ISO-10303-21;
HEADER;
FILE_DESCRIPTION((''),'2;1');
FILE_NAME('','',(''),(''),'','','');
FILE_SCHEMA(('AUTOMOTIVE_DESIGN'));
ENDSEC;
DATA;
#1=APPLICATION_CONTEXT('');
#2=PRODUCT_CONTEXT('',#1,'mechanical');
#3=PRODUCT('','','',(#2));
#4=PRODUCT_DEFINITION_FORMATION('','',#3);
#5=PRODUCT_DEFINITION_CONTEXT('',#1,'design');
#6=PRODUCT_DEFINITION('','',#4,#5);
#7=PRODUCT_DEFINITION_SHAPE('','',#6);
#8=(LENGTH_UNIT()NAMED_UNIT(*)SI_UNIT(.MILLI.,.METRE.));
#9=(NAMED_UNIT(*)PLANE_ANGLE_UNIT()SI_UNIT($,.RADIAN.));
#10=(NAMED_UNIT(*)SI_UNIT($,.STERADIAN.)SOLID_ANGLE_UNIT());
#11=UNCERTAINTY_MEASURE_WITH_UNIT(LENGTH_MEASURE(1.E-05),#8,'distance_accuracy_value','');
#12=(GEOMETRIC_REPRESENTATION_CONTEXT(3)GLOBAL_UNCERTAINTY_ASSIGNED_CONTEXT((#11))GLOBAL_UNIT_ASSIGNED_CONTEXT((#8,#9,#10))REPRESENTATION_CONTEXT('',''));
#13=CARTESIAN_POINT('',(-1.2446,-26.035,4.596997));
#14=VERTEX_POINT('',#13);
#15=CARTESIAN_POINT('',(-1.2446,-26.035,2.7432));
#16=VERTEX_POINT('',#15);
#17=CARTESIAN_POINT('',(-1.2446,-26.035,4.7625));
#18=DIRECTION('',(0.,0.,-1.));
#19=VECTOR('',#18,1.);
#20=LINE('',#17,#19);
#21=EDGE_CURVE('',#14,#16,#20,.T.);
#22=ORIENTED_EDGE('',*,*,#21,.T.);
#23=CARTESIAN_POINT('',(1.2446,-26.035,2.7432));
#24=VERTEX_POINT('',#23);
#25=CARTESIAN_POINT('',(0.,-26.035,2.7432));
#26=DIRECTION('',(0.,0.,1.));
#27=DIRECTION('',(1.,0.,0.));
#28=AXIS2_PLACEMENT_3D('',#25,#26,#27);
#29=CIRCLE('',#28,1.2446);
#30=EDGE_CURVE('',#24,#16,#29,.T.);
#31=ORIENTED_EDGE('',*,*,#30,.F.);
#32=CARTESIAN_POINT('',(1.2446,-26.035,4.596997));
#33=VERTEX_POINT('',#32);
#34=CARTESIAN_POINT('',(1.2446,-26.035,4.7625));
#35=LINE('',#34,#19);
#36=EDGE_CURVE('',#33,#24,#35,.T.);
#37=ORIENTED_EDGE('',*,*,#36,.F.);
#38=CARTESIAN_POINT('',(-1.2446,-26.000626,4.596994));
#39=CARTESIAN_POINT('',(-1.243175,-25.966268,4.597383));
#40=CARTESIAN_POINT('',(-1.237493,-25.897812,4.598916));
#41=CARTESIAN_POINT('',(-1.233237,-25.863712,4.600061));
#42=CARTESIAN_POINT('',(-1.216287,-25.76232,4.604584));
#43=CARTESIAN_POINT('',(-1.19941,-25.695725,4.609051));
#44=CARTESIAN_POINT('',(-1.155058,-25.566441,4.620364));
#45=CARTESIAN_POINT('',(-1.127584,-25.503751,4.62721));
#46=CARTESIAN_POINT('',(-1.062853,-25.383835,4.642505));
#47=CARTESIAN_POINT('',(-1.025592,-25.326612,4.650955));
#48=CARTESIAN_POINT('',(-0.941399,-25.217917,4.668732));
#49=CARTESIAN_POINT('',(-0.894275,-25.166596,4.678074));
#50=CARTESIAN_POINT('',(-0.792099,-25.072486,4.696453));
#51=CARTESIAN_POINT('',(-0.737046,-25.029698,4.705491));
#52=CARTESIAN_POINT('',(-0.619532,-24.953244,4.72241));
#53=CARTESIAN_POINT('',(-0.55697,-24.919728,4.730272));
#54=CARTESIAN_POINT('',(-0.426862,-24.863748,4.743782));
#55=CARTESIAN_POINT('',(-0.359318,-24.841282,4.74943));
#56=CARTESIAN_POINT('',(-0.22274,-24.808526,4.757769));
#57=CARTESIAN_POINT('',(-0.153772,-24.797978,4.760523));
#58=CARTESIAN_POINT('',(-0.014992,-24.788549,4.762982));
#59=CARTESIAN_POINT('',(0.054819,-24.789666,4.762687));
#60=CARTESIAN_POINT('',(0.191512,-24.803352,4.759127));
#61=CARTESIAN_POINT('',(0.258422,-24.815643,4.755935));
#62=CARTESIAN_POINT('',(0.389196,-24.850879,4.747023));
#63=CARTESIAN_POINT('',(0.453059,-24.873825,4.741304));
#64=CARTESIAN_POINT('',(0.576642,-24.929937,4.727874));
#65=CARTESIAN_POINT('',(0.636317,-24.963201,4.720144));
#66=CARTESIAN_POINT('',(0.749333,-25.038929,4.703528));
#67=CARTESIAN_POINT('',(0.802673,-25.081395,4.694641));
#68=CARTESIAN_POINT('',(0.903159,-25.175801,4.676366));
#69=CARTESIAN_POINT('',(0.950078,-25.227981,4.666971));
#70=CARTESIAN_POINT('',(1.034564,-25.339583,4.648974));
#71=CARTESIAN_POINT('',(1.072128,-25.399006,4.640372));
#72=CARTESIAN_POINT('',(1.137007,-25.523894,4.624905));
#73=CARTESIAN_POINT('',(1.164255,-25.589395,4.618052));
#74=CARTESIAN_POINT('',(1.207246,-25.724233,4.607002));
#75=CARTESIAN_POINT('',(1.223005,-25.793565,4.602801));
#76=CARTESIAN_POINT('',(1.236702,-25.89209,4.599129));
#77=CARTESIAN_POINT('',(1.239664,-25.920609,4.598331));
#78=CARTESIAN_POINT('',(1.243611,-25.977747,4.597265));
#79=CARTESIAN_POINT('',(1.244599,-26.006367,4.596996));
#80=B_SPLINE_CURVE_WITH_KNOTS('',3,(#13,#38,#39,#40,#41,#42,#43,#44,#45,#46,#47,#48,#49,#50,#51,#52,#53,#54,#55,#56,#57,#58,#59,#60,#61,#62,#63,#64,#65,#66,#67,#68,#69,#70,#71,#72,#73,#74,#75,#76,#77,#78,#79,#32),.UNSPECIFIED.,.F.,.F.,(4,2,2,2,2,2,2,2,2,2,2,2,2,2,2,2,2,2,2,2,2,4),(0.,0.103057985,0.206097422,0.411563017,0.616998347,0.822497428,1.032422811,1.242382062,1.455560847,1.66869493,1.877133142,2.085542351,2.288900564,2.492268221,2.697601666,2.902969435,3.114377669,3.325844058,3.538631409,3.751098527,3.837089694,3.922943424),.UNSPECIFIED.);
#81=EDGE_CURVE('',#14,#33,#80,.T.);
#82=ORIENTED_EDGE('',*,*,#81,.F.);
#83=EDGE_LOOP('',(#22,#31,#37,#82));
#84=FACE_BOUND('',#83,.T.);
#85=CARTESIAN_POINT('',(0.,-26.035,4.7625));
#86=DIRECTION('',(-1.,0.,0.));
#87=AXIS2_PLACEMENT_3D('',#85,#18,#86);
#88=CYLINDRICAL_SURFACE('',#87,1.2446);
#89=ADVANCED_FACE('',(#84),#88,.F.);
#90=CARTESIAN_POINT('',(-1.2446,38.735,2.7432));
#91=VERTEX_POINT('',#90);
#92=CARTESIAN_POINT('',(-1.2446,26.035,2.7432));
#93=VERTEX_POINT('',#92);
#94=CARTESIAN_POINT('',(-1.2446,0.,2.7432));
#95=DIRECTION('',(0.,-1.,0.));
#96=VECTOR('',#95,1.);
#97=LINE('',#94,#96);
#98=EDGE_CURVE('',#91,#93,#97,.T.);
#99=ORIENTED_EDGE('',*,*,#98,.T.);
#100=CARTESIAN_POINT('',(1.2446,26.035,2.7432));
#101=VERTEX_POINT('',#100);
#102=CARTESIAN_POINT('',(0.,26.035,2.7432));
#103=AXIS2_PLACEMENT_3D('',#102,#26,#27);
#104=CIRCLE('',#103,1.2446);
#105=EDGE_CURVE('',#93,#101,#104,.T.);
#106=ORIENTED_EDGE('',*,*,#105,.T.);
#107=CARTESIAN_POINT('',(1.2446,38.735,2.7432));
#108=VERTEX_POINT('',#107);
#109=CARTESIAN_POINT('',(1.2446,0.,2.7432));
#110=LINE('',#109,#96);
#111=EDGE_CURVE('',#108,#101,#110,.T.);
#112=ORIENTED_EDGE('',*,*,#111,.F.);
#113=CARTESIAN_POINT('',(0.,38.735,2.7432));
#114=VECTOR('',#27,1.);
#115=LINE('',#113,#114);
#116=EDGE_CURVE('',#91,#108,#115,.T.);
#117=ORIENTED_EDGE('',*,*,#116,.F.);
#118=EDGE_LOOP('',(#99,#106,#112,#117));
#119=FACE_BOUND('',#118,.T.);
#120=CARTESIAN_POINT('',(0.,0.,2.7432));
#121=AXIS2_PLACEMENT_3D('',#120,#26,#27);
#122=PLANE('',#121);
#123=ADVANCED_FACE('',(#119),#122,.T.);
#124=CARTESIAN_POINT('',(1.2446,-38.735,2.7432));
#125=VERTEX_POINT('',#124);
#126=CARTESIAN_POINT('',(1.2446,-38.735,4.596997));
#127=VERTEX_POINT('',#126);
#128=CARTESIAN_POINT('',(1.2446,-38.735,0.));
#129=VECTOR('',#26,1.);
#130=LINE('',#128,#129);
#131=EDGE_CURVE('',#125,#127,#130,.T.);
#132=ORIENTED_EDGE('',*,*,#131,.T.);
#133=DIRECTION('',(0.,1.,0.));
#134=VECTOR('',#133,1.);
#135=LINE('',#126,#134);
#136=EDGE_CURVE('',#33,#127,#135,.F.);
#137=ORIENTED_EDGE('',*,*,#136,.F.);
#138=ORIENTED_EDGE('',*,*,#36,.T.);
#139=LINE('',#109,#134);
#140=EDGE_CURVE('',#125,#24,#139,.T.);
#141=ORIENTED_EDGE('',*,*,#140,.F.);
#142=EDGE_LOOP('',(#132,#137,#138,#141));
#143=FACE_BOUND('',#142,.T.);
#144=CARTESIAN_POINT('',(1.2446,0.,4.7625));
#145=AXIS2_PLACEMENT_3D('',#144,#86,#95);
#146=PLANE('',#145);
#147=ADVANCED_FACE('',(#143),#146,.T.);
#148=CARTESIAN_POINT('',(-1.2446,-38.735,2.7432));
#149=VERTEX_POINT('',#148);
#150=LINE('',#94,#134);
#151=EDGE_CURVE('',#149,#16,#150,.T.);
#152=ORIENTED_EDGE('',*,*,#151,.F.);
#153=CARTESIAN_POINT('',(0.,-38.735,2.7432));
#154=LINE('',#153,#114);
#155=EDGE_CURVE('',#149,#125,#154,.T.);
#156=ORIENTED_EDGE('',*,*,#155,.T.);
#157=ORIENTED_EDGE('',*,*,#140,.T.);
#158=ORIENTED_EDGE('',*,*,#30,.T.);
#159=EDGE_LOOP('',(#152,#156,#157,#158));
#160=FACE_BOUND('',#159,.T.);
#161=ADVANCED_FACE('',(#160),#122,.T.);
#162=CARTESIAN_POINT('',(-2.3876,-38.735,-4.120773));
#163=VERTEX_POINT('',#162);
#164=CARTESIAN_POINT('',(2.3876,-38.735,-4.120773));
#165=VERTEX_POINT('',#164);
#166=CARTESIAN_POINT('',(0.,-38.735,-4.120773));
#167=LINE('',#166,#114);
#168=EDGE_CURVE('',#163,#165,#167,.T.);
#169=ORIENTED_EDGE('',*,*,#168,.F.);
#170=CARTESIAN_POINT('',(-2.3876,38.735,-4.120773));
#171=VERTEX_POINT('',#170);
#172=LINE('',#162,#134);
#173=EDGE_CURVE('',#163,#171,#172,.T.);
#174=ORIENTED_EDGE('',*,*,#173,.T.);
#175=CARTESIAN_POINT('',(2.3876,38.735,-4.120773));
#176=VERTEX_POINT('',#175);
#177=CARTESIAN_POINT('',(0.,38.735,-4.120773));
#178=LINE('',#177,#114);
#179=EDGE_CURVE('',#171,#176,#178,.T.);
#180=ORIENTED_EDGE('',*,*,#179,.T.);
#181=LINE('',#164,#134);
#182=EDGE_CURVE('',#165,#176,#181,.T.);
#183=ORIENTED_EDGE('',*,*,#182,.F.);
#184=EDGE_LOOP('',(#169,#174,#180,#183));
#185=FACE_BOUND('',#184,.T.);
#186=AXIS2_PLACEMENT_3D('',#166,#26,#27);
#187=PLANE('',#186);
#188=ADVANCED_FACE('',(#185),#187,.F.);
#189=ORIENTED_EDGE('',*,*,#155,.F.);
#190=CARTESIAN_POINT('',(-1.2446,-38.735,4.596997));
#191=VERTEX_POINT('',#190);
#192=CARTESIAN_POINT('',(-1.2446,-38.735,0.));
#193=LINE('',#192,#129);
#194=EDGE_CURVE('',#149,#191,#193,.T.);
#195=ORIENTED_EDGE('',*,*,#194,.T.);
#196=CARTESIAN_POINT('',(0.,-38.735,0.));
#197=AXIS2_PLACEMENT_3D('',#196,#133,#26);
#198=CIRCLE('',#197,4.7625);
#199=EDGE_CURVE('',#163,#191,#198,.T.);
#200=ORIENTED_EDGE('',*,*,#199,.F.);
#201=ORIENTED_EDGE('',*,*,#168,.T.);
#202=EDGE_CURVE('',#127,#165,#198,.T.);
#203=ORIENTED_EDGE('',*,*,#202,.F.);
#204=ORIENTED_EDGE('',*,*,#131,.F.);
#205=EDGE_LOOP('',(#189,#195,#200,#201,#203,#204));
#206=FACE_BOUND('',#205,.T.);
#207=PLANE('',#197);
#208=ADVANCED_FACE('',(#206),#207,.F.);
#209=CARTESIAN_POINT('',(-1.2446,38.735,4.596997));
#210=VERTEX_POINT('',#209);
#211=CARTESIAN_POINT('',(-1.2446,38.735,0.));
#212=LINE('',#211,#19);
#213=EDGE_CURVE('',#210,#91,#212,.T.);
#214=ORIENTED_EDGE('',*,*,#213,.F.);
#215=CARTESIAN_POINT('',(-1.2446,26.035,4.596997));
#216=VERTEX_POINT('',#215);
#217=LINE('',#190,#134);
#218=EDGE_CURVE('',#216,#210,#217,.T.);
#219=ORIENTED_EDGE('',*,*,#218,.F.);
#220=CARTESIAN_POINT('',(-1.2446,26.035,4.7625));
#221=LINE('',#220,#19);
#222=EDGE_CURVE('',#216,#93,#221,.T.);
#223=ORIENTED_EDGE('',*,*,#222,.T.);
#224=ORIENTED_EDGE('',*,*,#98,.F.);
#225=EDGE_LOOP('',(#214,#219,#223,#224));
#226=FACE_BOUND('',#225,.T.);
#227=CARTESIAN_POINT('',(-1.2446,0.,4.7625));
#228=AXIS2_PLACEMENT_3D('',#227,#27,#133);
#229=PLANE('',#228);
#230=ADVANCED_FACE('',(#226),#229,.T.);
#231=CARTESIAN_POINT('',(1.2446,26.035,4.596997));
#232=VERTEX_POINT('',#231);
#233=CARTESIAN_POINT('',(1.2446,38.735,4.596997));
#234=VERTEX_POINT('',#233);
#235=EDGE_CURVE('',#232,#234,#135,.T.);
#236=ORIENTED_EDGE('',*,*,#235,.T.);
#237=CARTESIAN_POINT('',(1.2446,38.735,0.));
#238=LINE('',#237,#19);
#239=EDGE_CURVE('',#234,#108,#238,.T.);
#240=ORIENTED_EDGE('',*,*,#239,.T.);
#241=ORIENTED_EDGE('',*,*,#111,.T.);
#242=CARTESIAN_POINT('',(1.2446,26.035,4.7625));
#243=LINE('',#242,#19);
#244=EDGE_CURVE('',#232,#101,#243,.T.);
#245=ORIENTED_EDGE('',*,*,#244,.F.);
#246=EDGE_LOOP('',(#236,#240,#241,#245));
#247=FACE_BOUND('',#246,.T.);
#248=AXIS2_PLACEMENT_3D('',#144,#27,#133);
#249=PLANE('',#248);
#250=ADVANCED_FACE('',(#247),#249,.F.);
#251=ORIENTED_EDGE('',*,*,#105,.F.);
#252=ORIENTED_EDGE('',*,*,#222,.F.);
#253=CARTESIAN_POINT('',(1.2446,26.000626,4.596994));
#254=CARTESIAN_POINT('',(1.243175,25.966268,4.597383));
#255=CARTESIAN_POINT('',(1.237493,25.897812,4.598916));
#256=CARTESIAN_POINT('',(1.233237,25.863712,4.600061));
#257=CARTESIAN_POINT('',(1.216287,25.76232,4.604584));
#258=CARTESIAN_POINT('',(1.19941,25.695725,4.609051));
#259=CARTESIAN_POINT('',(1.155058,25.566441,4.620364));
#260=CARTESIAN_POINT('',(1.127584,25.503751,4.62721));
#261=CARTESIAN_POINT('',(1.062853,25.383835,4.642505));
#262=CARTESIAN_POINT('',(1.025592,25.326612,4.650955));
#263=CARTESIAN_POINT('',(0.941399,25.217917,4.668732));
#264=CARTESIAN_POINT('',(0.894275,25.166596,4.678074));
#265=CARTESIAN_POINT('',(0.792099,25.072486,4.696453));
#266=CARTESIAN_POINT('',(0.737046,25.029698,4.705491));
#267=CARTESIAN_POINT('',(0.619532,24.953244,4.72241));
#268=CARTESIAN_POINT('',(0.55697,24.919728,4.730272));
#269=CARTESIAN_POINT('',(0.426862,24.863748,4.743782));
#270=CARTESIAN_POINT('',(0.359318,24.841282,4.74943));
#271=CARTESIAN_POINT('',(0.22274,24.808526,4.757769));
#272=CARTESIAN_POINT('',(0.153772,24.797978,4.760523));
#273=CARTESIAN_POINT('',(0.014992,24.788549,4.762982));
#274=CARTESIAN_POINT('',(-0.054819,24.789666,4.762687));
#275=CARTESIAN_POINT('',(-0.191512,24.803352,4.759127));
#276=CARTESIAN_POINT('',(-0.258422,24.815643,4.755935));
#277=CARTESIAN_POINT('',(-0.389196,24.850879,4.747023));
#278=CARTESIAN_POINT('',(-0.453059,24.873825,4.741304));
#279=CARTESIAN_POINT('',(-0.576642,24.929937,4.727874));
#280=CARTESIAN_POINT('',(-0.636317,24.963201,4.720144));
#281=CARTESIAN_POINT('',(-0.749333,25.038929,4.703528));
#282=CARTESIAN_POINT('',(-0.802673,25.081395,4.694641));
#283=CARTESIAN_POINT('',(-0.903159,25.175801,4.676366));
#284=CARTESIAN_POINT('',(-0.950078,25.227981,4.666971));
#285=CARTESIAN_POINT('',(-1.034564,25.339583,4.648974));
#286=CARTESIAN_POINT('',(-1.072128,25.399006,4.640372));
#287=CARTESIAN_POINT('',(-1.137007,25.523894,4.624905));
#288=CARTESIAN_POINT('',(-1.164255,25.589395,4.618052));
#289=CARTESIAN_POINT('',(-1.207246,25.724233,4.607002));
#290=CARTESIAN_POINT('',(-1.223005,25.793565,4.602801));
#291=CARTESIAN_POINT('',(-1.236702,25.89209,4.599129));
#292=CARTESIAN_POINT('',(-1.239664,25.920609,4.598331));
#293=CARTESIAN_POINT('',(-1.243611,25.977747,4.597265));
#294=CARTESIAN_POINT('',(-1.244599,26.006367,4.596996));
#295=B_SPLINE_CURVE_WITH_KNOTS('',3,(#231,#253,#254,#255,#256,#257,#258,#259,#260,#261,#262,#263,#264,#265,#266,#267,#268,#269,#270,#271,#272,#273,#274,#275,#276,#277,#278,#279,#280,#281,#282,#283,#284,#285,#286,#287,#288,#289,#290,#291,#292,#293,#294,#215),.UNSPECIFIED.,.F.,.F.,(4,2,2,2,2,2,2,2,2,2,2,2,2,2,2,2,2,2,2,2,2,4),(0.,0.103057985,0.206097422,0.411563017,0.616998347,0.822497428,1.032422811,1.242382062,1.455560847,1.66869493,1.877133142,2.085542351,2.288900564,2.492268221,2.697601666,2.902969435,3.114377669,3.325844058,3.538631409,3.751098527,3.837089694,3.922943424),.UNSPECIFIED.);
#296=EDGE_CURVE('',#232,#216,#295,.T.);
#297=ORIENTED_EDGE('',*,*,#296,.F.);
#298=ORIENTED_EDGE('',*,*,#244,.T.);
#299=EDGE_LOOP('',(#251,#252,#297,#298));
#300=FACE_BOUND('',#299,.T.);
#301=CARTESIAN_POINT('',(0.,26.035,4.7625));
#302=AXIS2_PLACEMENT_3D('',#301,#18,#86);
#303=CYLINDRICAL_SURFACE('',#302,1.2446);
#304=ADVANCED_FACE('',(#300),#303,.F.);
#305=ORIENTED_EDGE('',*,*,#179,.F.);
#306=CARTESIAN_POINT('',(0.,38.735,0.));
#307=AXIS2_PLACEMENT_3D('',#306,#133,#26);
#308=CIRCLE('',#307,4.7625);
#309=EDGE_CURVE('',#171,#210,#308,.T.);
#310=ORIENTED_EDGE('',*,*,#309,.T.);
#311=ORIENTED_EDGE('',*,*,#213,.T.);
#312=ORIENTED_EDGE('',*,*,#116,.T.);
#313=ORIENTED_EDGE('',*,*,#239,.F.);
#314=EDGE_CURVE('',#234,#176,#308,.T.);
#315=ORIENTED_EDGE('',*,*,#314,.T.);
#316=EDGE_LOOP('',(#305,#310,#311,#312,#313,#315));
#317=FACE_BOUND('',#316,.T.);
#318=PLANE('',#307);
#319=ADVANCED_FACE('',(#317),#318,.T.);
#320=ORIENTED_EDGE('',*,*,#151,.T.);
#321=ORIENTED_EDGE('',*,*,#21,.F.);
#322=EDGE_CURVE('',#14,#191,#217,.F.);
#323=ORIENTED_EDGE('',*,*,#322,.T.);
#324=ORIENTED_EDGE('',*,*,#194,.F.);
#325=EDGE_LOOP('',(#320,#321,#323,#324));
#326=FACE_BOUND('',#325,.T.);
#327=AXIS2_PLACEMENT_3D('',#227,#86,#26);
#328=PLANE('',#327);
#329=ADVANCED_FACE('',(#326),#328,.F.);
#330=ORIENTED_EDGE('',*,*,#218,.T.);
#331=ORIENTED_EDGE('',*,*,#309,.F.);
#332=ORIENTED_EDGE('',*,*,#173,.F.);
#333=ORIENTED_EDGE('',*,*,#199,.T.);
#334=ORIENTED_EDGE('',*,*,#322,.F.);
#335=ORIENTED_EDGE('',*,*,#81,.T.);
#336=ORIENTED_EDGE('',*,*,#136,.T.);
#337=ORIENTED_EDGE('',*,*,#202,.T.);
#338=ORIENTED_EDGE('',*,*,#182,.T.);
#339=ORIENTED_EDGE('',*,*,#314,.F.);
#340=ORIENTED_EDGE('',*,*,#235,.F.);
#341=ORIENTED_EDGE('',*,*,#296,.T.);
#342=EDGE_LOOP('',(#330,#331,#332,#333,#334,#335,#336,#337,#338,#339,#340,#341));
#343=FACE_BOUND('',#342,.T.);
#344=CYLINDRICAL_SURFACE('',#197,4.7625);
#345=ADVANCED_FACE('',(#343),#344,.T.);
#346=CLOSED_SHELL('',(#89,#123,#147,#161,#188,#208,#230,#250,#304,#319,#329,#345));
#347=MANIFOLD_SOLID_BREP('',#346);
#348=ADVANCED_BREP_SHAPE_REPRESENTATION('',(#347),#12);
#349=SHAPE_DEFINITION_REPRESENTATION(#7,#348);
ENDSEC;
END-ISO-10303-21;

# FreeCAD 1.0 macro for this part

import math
import FreeCAD as App
import Part
import Sketcher
Q = App.Units.Quantity

doc = App.newDocument("Part")
body = doc.addObject("PartDesign::Body", "Body")

# Sketch on XZ plane
sketch1 = doc.addObject("Sketcher::SketchObject", "Sketch")
body.addObject(sketch1)
sketch1.AttachmentSupport = (doc.XZ_Plane, [""])
sketch1.MapMode = "FlatFace"
sketch1.addGeometry(Part.LineSegment(App.Vector(2.4, -4.1, 0), App.Vector(-2.4, -4.1, 0)), False)
sketch1.addGeometry(Part.ArcOfCircle(Part.Circle(App.Vector(0, 0, 0), App.Vector(0, 0, 1), 4.8), math.radians(0), math.radians(240)), False)
sketch1.addGeometry(Part.ArcOfCircle(Part.Circle(App.Vector(0, 0, 0), App.Vector(0, 0, 1), 4.8), math.radians(-60), math.radians(0)), False)
sketch1.addConstraint(Sketcher.Constraint("Coincident", 0, 2, 1, 2))
sketch1.addConstraint(Sketcher.Constraint("Tangent", 1, 1, 2, 2))
sketch1.addConstraint(Sketcher.Constraint("Coincident", 2, 1, 0, 1))
sketch1.addConstraint(Sketcher.Constraint("Horizontal", 0))
sketch1.addConstraint(Sketcher.Constraint("Coincident", 1, 3, -1, 1))
sketch1.addConstraint(Sketcher.Constraint("Equal", 1, 2))
sketch1.addConstraint(Sketcher.Constraint("PointOnObject", 1, 1, -1))
sketch1.addConstraint(Sketcher.Constraint("Radius", 1, Q("0.1875 in")))
sketch1.addConstraint(Sketcher.Constraint("DistanceX", 0, 2, 0, 1, Q("0.188 in")))
pad1 = doc.addObject("PartDesign::Pad", "Pad")
body.addObject(pad1)
pad1.Profile = sketch1
pad1.Type = "TwoLengths"
pad1.Length = Q("1.525 in")
pad1.Length2 = Q("1.525 in")
pad1.Reversed = True

# Sketch on XY plane
sketch2 = doc.addObject("Sketcher::SketchObject", "Sketch001")
body.addObject(sketch2)
sketch2.AttachmentSupport = (doc.XY_Plane, [""])
sketch2.MapMode = "FlatFace"
sketch2.AttachmentOffset = App.Placement(App.Vector(0, 0, 0.108 * 25.4), App.Rotation())
sketch2.addGeometry(Part.LineSegment(App.Vector(-1.2, -26, 0), App.Vector(-1.2, -38.7, 0)), False)
sketch2.addGeometry(Part.LineSegment(App.Vector(-1.2, -38.7, 0), App.Vector(1.2, -38.7, 0)), False)
sketch2.addGeometry(Part.LineSegment(App.Vector(1.2, -38.7, 0), App.Vector(1.2, -26, 0)), False)
sketch2.addGeometry(Part.ArcOfCircle(Part.Circle(App.Vector(0, -26, 0), App.Vector(0, 0, 1), 1.2), math.radians(0), math.radians(180)), False)
sketch2.addGeometry(Part.LineSegment(App.Vector(-1.2, 38.7, 0), App.Vector(-1.2, 26, 0)), False)
sketch2.addGeometry(Part.ArcOfCircle(Part.Circle(App.Vector(0, 26, 0), App.Vector(0, 0, 1), 1.2), math.radians(180), math.radians(360)), False)
sketch2.addGeometry(Part.LineSegment(App.Vector(1.2, 26, 0), App.Vector(1.2, 38.7, 0)), False)
sketch2.addGeometry(Part.LineSegment(App.Vector(1.2, 38.7, 0), App.Vector(-1.2, 38.7, 0)), False)
sketch2.addConstraint(Sketcher.Constraint("Coincident", 0, 2, 1, 1))
sketch2.addConstraint(Sketcher.Constraint("Coincident", 1, 2, 2, 1))
sketch2.addConstraint(Sketcher.Constraint("Tangent", 2, 2, 3, 1))
sketch2.addConstraint(Sketcher.Constraint("Tangent", 3, 2, 0, 1))
sketch2.addConstraint(Sketcher.Constraint("Tangent", 4, 2, 5, 1))
sketch2.addConstraint(Sketcher.Constraint("Tangent", 5, 2, 6, 1))
sketch2.addConstraint(Sketcher.Constraint("Coincident", 6, 2, 7, 1))
sketch2.addConstraint(Sketcher.Constraint("Coincident", 7, 2, 4, 1))
sketch2.addConstraint(Sketcher.Constraint("Vertical", 0))
sketch2.addConstraint(Sketcher.Constraint("Horizontal", 1))
sketch2.addConstraint(Sketcher.Constraint("Vertical", 2))
sketch2.addConstraint(Sketcher.Constraint("Vertical", 4))
sketch2.addConstraint(Sketcher.Constraint("Vertical", 6))
sketch2.addConstraint(Sketcher.Constraint("Horizontal", 7))
sketch2.addConstraint(Sketcher.Constraint("Equal", 3, 5))
sketch2.addConstraint(Sketcher.Constraint("Symmetric", 3, 3, 5, 3, -1, 1))
sketch2.addConstraint(Sketcher.Constraint("Symmetric", 1, 2, 6, 2, -1))
sketch2.addConstraint(Sketcher.Constraint("DistanceY", 0, 2, 0, 1, Q("0.5 in")))
sketch2.addConstraint(Sketcher.Constraint("Radius", 3, Q("0.049 in")))
sketch2.addConstraint(Sketcher.Constraint("DistanceY", 3, 3, 5, 3, Q("2.05 in")))
pocket1 = doc.addObject("PartDesign::Pocket", "Pocket")
body.addObject(pocket1)
pocket1.Profile = sketch2
pocket1.Type = "ThroughAll"
pocket1.Reversed = True

doc.recompute()
